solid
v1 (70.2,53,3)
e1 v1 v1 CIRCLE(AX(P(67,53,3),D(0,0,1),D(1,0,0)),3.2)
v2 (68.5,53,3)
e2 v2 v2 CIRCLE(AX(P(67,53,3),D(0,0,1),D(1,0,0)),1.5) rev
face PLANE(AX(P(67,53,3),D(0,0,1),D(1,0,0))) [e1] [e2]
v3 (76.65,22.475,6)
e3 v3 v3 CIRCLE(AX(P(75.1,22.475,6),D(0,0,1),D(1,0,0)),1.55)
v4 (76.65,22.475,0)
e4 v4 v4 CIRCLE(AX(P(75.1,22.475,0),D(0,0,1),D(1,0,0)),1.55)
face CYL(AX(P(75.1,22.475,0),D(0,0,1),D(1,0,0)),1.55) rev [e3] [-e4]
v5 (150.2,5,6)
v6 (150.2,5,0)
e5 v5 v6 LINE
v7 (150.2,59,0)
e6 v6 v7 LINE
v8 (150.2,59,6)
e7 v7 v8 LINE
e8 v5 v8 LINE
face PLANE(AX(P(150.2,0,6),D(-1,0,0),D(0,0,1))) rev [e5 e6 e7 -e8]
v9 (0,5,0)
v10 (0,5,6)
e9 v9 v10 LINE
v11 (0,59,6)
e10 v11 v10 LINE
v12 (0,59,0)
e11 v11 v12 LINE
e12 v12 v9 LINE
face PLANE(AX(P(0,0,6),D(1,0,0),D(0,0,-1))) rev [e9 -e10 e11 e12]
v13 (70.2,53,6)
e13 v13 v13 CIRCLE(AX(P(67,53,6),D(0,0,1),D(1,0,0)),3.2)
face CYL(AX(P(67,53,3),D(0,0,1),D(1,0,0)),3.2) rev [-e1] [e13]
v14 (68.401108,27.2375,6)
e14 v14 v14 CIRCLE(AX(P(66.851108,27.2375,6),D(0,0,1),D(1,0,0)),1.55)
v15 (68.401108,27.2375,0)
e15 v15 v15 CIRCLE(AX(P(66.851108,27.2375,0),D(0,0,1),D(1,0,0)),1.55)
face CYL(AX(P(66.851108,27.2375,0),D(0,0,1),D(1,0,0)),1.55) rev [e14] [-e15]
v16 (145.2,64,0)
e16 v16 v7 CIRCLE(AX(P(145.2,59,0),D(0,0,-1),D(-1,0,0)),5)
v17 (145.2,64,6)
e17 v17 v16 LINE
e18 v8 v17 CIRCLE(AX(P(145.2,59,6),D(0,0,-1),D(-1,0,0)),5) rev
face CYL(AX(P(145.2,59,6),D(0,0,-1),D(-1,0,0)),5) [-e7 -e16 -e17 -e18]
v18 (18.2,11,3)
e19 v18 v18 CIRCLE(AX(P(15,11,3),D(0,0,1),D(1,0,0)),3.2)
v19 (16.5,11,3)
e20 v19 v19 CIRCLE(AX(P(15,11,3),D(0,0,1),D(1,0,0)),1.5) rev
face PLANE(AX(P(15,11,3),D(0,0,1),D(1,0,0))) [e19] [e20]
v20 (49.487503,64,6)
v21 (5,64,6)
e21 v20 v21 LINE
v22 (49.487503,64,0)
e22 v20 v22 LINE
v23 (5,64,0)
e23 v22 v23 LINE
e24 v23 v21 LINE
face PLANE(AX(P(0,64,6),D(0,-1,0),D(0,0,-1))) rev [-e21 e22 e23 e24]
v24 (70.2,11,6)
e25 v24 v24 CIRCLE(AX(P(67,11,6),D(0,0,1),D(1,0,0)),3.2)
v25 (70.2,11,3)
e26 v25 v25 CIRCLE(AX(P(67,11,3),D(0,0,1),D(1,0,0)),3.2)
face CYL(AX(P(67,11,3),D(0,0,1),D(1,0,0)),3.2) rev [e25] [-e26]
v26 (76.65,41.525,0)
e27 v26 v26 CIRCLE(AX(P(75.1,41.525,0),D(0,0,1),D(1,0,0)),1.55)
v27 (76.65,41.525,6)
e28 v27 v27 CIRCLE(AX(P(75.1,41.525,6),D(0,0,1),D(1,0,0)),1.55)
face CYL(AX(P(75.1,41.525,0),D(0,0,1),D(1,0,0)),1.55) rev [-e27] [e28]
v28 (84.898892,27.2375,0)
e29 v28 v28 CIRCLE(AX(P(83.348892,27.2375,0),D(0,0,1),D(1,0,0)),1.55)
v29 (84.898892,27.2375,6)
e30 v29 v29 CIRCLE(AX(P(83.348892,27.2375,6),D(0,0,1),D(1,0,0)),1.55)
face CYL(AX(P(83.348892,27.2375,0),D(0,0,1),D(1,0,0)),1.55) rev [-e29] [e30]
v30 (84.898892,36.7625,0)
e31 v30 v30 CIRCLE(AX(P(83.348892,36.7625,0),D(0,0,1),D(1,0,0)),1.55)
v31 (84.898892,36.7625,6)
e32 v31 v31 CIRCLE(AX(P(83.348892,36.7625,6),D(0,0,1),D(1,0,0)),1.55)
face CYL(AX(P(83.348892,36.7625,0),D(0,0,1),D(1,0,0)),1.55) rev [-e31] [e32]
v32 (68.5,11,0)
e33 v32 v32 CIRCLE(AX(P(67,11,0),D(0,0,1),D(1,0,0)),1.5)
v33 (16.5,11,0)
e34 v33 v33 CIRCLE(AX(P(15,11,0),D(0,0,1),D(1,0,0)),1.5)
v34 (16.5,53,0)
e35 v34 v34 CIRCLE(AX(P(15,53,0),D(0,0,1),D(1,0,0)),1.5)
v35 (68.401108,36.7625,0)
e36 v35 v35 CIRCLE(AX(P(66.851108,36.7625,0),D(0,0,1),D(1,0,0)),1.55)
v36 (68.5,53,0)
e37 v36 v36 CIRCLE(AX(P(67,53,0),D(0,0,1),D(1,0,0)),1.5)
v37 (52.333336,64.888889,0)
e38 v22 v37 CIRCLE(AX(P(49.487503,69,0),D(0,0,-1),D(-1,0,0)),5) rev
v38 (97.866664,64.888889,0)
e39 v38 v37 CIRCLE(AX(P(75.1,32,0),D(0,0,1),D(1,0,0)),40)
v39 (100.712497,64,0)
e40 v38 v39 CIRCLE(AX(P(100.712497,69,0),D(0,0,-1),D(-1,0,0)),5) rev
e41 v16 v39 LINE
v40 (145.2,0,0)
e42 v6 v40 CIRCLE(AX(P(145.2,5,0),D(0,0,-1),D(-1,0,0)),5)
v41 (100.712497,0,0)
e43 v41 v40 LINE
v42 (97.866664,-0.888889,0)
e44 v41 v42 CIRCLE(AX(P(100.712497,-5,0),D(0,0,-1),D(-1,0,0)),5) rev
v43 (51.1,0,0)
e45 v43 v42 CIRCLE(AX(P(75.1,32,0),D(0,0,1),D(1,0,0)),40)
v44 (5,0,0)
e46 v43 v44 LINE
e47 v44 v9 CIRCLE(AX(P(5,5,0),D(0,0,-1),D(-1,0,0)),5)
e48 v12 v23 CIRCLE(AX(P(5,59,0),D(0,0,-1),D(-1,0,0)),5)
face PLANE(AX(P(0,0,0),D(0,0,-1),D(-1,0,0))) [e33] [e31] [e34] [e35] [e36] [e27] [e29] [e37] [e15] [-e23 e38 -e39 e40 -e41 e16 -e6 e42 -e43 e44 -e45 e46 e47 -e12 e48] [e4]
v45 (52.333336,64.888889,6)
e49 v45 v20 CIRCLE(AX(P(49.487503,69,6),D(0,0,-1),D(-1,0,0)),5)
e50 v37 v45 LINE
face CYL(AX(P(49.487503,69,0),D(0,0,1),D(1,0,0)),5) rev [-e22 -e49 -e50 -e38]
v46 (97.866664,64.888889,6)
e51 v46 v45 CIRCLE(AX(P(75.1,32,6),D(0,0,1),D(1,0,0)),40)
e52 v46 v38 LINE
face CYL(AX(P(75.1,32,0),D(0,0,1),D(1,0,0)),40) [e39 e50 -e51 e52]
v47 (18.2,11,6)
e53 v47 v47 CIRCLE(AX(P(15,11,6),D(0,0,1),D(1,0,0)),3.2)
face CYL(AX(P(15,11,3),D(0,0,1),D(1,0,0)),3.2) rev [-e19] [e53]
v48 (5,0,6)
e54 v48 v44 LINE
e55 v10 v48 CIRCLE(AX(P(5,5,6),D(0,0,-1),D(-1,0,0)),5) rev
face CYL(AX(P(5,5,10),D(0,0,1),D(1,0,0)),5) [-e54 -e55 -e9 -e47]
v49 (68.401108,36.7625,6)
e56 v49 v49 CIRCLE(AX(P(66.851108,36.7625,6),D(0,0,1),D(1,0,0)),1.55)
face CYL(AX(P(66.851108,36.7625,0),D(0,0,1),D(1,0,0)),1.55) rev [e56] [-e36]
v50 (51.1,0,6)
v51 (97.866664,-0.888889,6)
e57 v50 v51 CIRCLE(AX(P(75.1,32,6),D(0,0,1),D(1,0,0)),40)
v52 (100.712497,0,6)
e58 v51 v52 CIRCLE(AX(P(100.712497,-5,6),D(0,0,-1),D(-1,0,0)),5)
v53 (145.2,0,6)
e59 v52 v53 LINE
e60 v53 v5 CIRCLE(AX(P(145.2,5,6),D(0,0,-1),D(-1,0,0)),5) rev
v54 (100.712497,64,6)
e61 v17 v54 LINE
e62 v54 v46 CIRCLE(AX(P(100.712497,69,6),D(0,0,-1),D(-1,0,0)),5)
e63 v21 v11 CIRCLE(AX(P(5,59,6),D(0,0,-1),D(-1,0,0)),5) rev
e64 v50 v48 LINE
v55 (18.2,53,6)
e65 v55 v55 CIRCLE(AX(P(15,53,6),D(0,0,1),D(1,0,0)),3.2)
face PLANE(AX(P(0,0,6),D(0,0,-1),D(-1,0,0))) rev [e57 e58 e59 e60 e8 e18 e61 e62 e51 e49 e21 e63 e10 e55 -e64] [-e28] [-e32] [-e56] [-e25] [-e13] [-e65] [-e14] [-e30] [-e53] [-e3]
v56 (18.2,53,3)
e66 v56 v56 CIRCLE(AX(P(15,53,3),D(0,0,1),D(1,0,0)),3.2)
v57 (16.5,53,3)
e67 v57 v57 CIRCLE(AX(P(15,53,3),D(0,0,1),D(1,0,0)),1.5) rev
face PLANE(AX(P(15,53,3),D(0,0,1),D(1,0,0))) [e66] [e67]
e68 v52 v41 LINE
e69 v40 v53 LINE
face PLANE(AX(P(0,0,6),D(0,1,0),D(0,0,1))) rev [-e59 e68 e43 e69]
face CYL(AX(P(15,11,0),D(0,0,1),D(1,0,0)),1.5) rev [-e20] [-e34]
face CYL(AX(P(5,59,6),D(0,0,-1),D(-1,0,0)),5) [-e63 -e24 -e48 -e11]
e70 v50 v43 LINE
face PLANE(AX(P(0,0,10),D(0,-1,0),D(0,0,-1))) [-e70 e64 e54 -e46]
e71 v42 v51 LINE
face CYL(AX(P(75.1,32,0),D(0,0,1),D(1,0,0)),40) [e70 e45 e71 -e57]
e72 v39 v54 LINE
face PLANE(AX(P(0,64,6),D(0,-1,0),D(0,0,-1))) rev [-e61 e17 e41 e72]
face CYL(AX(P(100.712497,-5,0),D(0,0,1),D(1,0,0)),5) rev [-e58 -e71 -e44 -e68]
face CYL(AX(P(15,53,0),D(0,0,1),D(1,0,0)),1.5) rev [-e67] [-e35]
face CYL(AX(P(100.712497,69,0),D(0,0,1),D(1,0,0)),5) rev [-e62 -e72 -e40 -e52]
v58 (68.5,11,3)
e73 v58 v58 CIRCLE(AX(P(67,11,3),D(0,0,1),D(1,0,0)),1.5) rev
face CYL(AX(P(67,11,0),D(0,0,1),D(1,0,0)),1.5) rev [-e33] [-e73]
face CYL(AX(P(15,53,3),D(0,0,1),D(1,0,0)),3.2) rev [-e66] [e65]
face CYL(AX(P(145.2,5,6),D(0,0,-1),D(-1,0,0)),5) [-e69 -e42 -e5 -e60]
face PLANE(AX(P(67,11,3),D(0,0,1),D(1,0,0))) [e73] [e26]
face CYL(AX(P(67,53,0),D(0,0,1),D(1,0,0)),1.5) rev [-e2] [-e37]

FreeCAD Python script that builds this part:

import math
import FreeCAD as App
import Part
import Sketcher
Q = App.Units.Quantity


def edges_at(feature, points):
    """Names of the edges that pass closest to the given points."""
    edges = feature.Shape.Edges
    near = lambda p: min(range(len(edges)), key=lambda i: edges[i].distToShape(Part.Vertex(*p))[0])
    return sorted({f"Edge{near(p) + 1}" for p in points})

doc = App.newDocument("Part")
body = doc.addObject("PartDesign::Body", "Body")

# Sketch on XY plane
sketch1 = body.newObject("Sketcher::SketchObject", "Sketch")
sketch1.AttachmentSupport = (doc.getObject("XY_Plane"), [""])
sketch1.MapMode = "FlatFace"
sketch1.addGeometry(Part.LineSegment(App.Vector(0, 64, 0), App.Vector(0, 0, 0)), False)
sketch1.addGeometry(Part.LineSegment(App.Vector(0, 0, 0), App.Vector(150.2, 0, 0)), False)
sketch1.addGeometry(Part.LineSegment(App.Vector(150.2, 0, 0), App.Vector(150.2, 64, 0)), False)
sketch1.addGeometry(Part.LineSegment(App.Vector(150.2, 64, 0), App.Vector(0, 64, 0)), False)
sketch1.addConstraint(Sketcher.Constraint("Coincident", 0, 2, 1, 1))
sketch1.addConstraint(Sketcher.Constraint("Coincident", 1, 2, 2, 1))
sketch1.addConstraint(Sketcher.Constraint("Coincident", 2, 2, 3, 1))
sketch1.addConstraint(Sketcher.Constraint("Coincident", 3, 2, 0, 1))
sketch1.addConstraint(Sketcher.Constraint("Vertical", 0))
sketch1.addConstraint(Sketcher.Constraint("Horizontal", 1))
sketch1.addConstraint(Sketcher.Constraint("Vertical", 2))
sketch1.addConstraint(Sketcher.Constraint("Horizontal", 3))
sketch1.addConstraint(Sketcher.Constraint("Coincident", 0, 2, -1, 1))
sketch1.addConstraint(Sketcher.Constraint("DistanceY", 0, 2, 0, 1, Q("64 mm")))
sketch1.addConstraint(Sketcher.Constraint("DistanceX", 1, 1, 1, 2, Q("150.2 mm")))
pad1 = body.newObject("PartDesign::Pad", "Pad")
pad1.Profile = sketch1
pad1.Length = 6
doc.recompute()

fillet = body.newObject("PartDesign::Fillet", "Fillet")
fillet.Base = (pad1, edges_at(pad1, [
    (0, 64, 3),
    (150.2, 64, 3),
    (150.2, 0, 3),
    (0, 0, 3),
]))
fillet.Radius = 5

# Sketch on XZ plane
sketch2 = body.newObject("Sketcher::SketchObject", "Sketch001")
sketch2.AttachmentSupport = (doc.getObject("XZ_Plane"), [""])
sketch2.MapMode = "FlatFace"
sketch2.addGeometry(Part.LineSegment(App.Vector(0, 6, 0), App.Vector(0, 0, 0)), False)
sketch2.addGeometry(Part.LineSegment(App.Vector(0, 0, 0), App.Vector(60, 0, 0)), False)
sketch2.addGeometry(Part.LineSegment(App.Vector(60, 0, 0), App.Vector(60, 6, 0)), False)
sketch2.addGeometry(Part.LineSegment(App.Vector(60, 6, 0), App.Vector(0, 6, 0)), False)
sketch2.addConstraint(Sketcher.Constraint("Coincident", 0, 2, 1, 1))
sketch2.addConstraint(Sketcher.Constraint("Coincident", 1, 2, 2, 1))
sketch2.addConstraint(Sketcher.Constraint("Coincident", 2, 2, 3, 1))
sketch2.addConstraint(Sketcher.Constraint("Coincident", 3, 2, 0, 1))
sketch2.addConstraint(Sketcher.Constraint("Vertical", 0))
sketch2.addConstraint(Sketcher.Constraint("Horizontal", 1))
sketch2.addConstraint(Sketcher.Constraint("Vertical", 2))
sketch2.addConstraint(Sketcher.Constraint("Horizontal", 3))
sketch2.addConstraint(Sketcher.Constraint("Coincident", 0, 2, -1, 1))
sketch2.addConstraint(Sketcher.Constraint("DistanceX", 1, 1, 1, 2, Q("60 mm")))
sketch2.addConstraint(Sketcher.Constraint("DistanceY", 0, 2, 0, 1, Q("6 mm")))
pad2 = body.newObject("PartDesign::Pad", "Pad001")
pad2.Profile = sketch2
pad2.Type = "TwoLengths"
pad2.Length = 40
pad2.Length2 = 10
doc.recompute()

fillet2 = body.newObject("PartDesign::Fillet", "Fillet001")
fillet2.Base = (pad2, edges_at(pad2, [(0, -40, 3), (60, -40, 3)]))
fillet2.Radius = 5

# Sketch on XY plane
sketch3 = body.newObject("Sketcher::SketchObject", "Sketch002")
sketch3.AttachmentSupport = (doc.getObject("XY_Plane"), [""])
sketch3.MapMode = "FlatFace"
sketch3.AttachmentOffset = App.Placement(App.Vector(0, 0, 6), App.Rotation())
sketch3.addGeometry(Part.Circle(App.Vector(75.1, 32, 0), App.Vector(0, 0, 1), 40), False)
sketch3.addConstraint(Sketcher.Constraint("Diameter", 0, Q("80 mm")))
sketch3.addConstraint(Sketcher.Constraint("DistanceY", -1, 1, 0, 3, Q("32 mm")))
sketch3.addConstraint(Sketcher.Constraint("DistanceX", -1, 1, 0, 3, Q("75.1 mm")))
pad3 = body.newObject("PartDesign::Pad", "Pad002")
pad3.Profile = sketch3
pad3.Length = 6
pad3.Reversed = True
doc.recompute()

fillet3 = body.newObject("PartDesign::Fillet", "Fillet002")
fillet3.Base = (pad3, edges_at(pad3, [
    (60, -5.04, 3),
    (99.1, 0, 3),
    (99.1, 64, 3),
    (51.1, 64, 3),
]))
fillet3.Radius = 5

# Sketch on XY plane
sketch4 = body.newObject("Sketcher::SketchObject", "Sketch003")
sketch4.AttachmentSupport = (doc.getObject("XY_Plane"), [""])
sketch4.MapMode = "FlatFace"
sketch4.AttachmentOffset = App.Placement(App.Vector(0, 0, 6), App.Rotation())
sketch4.addGeometry(Part.Circle(App.Vector(75.1, 41.525, 0), App.Vector(0, 0, 1), 1.55), False)
sketch4.addGeometry(Part.Circle(App.Vector(83.348892, 36.7625, 0), App.Vector(0, 0, 1), 1.55), False)
sketch4.addGeometry(Part.Circle(App.Vector(83.348892, 27.2375, 0), App.Vector(0, 0, 1), 1.55), False)
sketch4.addGeometry(Part.Circle(App.Vector(75.1, 22.475, 0), App.Vector(0, 0, 1), 1.55), False)
sketch4.addGeometry(Part.Circle(App.Vector(66.851108, 27.2375, 0), App.Vector(0, 0, 1), 1.55), False)
sketch4.addGeometry(Part.Circle(App.Vector(66.851108, 36.7625, 0), App.Vector(0, 0, 1), 1.55), False)
sketch4.addConstraint(Sketcher.Constraint("Equal", 0, 1))
sketch4.addConstraint(Sketcher.Constraint("Equal", 1, 2))
sketch4.addConstraint(Sketcher.Constraint("Equal", 2, 3))
sketch4.addConstraint(Sketcher.Constraint("Equal", 3, 4))
sketch4.addConstraint(Sketcher.Constraint("Equal", 4, 5))
sketch4.addConstraint(Sketcher.Constraint("Horizontal", 2, 3, 4, 3))
sketch4.addConstraint(Sketcher.Constraint("Horizontal", 1, 3, 5, 3))
sketch4.addConstraint(Sketcher.Constraint("Vertical", 1, 3, 2, 3))
sketch4.addConstraint(Sketcher.Constraint("Vertical", 0, 3, 3, 3))
sketch4.addConstraint(Sketcher.Constraint("Vertical", 4, 3, 5, 3))
sketch4.addConstraint(Sketcher.Constraint("Diameter", 0, Q("3.1 mm")))
sketch4.addConstraint(Sketcher.Constraint("DistanceX", -1, 1, 0, 3, Q("75.1 mm")))
sketch4.addConstraint(Sketcher.Constraint("DistanceY", 3, 3, 0, 3, Q("19.05 mm")))
sketch4.addConstraint(Sketcher.Constraint("DistanceY", -1, 1, 0, 3, Q("41.525 mm")))
sketch4.addConstraint(Sketcher.Constraint("DistanceY", 2, 3, 1, 3, Q("9.525 mm")))
sketch4.addConstraint(Sketcher.Constraint("DistanceY", -1, 1, 1, 3, Q("36.7625 mm")))
sketch4.addConstraint(Sketcher.Constraint("DistanceX", -1, 1, 1, 3, Q("83.348892 mm")))
sketch4.addConstraint(Sketcher.Constraint("DistanceX", -1, 1, 4, 3, Q("66.851108 mm")))
pocket1 = body.newObject("PartDesign::Pocket", "Pocket")
pocket1.Profile = sketch4
pocket1.Type = "ThroughAll"

# Sketch on XY plane
sketch5 = body.newObject("Sketcher::SketchObject", "Sketch004")
sketch5.AttachmentSupport = (doc.getObject("XY_Plane"), [""])
sketch5.MapMode = "FlatFace"
sketch5.AttachmentOffset = App.Placement(App.Vector(0, 0, 10), App.Rotation())
sketch5.addGeometry(Part.LineSegment(App.Vector(0, 0, 0), App.Vector(51.1, 0, 0)), False)
sketch5.addGeometry(Part.ArcOfCircle(Part.Circle(App.Vector(75.1, 32, 0), App.Vector(0, 0, 1), 40), math.radians(-126.869898), math.radians(-102.970212)), False)
sketch5.addGeometry(Part.ArcOfCircle(Part.Circle(App.Vector(65, -11.85191, 0), App.Vector(0, 0, 1), 5), math.radians(77.029788), math.radians(180)), False)
sketch5.addGeometry(Part.LineSegment(App.Vector(60, -11.85191, 0), App.Vector(60, -35, 0)), False)
sketch5.addGeometry(Part.ArcOfCircle(Part.Circle(App.Vector(55, -35, 0), App.Vector(0, 0, 1), 5), math.radians(-90), math.radians(0)), False)
sketch5.addGeometry(Part.LineSegment(App.Vector(55, -40, 0), App.Vector(5, -40, 0)), False)
sketch5.addGeometry(Part.ArcOfCircle(Part.Circle(App.Vector(5, -35, 0), App.Vector(0, 0, 1), 5), math.radians(180), math.radians(270)), False)
sketch5.addGeometry(Part.LineSegment(App.Vector(0, -35, 0), App.Vector(0, 0, 0)), False)
sketch5.addConstraint(Sketcher.Constraint("Coincident", 0, 2, 1, 1))
sketch5.addConstraint(Sketcher.Constraint("Tangent", 1, 2, 2, 1))
sketch5.addConstraint(Sketcher.Constraint("Tangent", 2, 2, 3, 1))
sketch5.addConstraint(Sketcher.Constraint("Tangent", 3, 2, 4, 2))
sketch5.addConstraint(Sketcher.Constraint("Tangent", 4, 1, 5, 1))
sketch5.addConstraint(Sketcher.Constraint("Tangent", 5, 2, 6, 2))
sketch5.addConstraint(Sketcher.Constraint("Tangent", 6, 1, 7, 1))
sketch5.addConstraint(Sketcher.Constraint("Coincident", 7, 2, 0, 1))
sketch5.addConstraint(Sketcher.Constraint("Horizontal", 0))
sketch5.addConstraint(Sketcher.Constraint("Vertical", 3))
sketch5.addConstraint(Sketcher.Constraint("Horizontal", 5))
sketch5.addConstraint(Sketcher.Constraint("Vertical", 7))
sketch5.addConstraint(Sketcher.Constraint("Coincident", 7, 2, -1, 1))
sketch5.addConstraint(Sketcher.Constraint("Equal", 2, 4))
sketch5.addConstraint(Sketcher.Constraint("Equal", 4, 6))
sketch5.addConstraint(Sketcher.Constraint("Radius", 1, Q("40 mm")))
sketch5.addConstraint(Sketcher.Constraint("Radius", 2, Q("5 mm")))
sketch5.addConstraint(Sketcher.Constraint("DistanceX", 5, 2, 5, 1, Q("50 mm")))
sketch5.addConstraint(Sketcher.Constraint("DistanceY", 7, 1, 7, 2, Q("35 mm")))
sketch5.addConstraint(Sketcher.Constraint("DistanceX", 0, 1, 0, 2, Q("51.1 mm")))
sketch5.addConstraint(Sketcher.Constraint("DistanceY", -1, 1, 1, 3, Q("32 mm")))
pocket2 = body.newObject("PartDesign::Pocket", "Pocket001")
pocket2.Profile = sketch5
pocket2.Length = 10
doc.recompute()

fillet4 = body.newObject("PartDesign::Fillet", "Fillet003")
fillet4.Base = (pocket2, edges_at(pocket2, [(0, 0, 3)]))
fillet4.Radius = 5

# Sketch on XY plane
sketch6 = body.newObject("Sketcher::SketchObject", "Sketch005")
sketch6.AttachmentSupport = (doc.getObject("XY_Plane"), [""])
sketch6.MapMode = "FlatFace"
sketch6.AttachmentOffset = App.Placement(App.Vector(0, 0, 6), App.Rotation())
sketch6.addGeometry(Part.Circle(App.Vector(15, 11, 0), App.Vector(0, 0, 1), 1.5), False)
sketch6.addGeometry(Part.Circle(App.Vector(15, 53, 0), App.Vector(0, 0, 1), 1.5), False)
sketch6.addConstraint(Sketcher.Constraint("Equal", 0, 1))
sketch6.addConstraint(Sketcher.Constraint("Vertical", 0, 3, 1, 3))
sketch6.addConstraint(Sketcher.Constraint("Diameter", 0, Q("3 mm")))
sketch6.addConstraint(Sketcher.Constraint("DistanceX", -1, 1, 0, 3, Q("15 mm")))
sketch6.addConstraint(Sketcher.Constraint("DistanceY", -1, 1, 0, 3, Q("11 mm")))
sketch6.addConstraint(Sketcher.Constraint("DistanceY", -1, 1, 1, 3, Q("53 mm")))
pocket3 = body.newObject("PartDesign::Pocket", "Pocket002")
pocket3.Profile = sketch6
pocket3.Type = "ThroughAll"

# Sketch on XY plane
sketch7 = body.newObject("Sketcher::SketchObject", "Sketch006")
sketch7.AttachmentSupport = (doc.getObject("XY_Plane"), [""])
sketch7.MapMode = "FlatFace"
sketch7.AttachmentOffset = App.Placement(App.Vector(0, 0, 6), App.Rotation())
sketch7.addGeometry(Part.Circle(App.Vector(67, 53, 0), App.Vector(0, 0, 1), 1.5), False)
sketch7.addGeometry(Part.Circle(App.Vector(67, 11, 0), App.Vector(0, 0, 1), 1.5), False)
sketch7.addConstraint(Sketcher.Constraint("Equal", 0, 1))
sketch7.addConstraint(Sketcher.Constraint("Vertical", 0, 3, 1, 3))
sketch7.addConstraint(Sketcher.Constraint("Diameter", 0, Q("3 mm")))
sketch7.addConstraint(Sketcher.Constraint("DistanceX", -1, 1, 0, 3, Q("67 mm")))
sketch7.addConstraint(Sketcher.Constraint("DistanceY", -1, 1, 0, 3, Q("53 mm")))
sketch7.addConstraint(Sketcher.Constraint("DistanceY", -1, 1, 1, 3, Q("11 mm")))
pocket4 = body.newObject("PartDesign::Pocket", "Pocket003")
pocket4.Profile = sketch7
pocket4.Type = "ThroughAll"

# Sketch on XY plane
sketch8 = body.newObject("Sketcher::SketchObject", "Sketch007")
sketch8.AttachmentSupport = (doc.getObject("XY_Plane"), [""])
sketch8.MapMode = "FlatFace"
sketch8.AttachmentOffset = App.Placement(App.Vector(0, 0, 6), App.Rotation())
sketch8.addGeometry(Part.Circle(App.Vector(15, 53, 0), App.Vector(0, 0, 1), 3.2), False)
sketch8.addGeometry(Part.Circle(App.Vector(67, 53, 0), App.Vector(0, 0, 1), 3.2), False)
sketch8.addGeometry(Part.Circle(App.Vector(15, 11, 0), App.Vector(0, 0, 1), 3.2), False)
sketch8.addGeometry(Part.Circle(App.Vector(67, 11, 0), App.Vector(0, 0, 1), 3.2), False)
sketch8.addConstraint(Sketcher.Constraint("Equal", 0, 1))
sketch8.addConstraint(Sketcher.Constraint("Equal", 1, 2))
sketch8.addConstraint(Sketcher.Constraint("Equal", 2, 3))
sketch8.addConstraint(Sketcher.Constraint("Horizontal", 0, 3, 1, 3))
sketch8.addConstraint(Sketcher.Constraint("Horizontal", 2, 3, 3, 3))
sketch8.addConstraint(Sketcher.Constraint("Vertical", 0, 3, 2, 3))
sketch8.addConstraint(Sketcher.Constraint("Vertical", 1, 3, 3, 3))
sketch8.addConstraint(Sketcher.Constraint("Diameter", 0, Q("6.4 mm")))
sketch8.addConstraint(Sketcher.Constraint("DistanceX", -1, 1, 0, 3, Q("15 mm")))
sketch8.addConstraint(Sketcher.Constraint("DistanceY", -1, 1, 0, 3, Q("53 mm")))
sketch8.addConstraint(Sketcher.Constraint("DistanceX", -1, 1, 1, 3, Q("67 mm")))
sketch8.addConstraint(Sketcher.Constraint("DistanceY", -1, 1, 2, 3, Q("11 mm")))
pocket5 = body.newObject("PartDesign::Pocket", "Pocket004")
pocket5.Profile = sketch8
pocket5.Length = 3

doc.recompute()
